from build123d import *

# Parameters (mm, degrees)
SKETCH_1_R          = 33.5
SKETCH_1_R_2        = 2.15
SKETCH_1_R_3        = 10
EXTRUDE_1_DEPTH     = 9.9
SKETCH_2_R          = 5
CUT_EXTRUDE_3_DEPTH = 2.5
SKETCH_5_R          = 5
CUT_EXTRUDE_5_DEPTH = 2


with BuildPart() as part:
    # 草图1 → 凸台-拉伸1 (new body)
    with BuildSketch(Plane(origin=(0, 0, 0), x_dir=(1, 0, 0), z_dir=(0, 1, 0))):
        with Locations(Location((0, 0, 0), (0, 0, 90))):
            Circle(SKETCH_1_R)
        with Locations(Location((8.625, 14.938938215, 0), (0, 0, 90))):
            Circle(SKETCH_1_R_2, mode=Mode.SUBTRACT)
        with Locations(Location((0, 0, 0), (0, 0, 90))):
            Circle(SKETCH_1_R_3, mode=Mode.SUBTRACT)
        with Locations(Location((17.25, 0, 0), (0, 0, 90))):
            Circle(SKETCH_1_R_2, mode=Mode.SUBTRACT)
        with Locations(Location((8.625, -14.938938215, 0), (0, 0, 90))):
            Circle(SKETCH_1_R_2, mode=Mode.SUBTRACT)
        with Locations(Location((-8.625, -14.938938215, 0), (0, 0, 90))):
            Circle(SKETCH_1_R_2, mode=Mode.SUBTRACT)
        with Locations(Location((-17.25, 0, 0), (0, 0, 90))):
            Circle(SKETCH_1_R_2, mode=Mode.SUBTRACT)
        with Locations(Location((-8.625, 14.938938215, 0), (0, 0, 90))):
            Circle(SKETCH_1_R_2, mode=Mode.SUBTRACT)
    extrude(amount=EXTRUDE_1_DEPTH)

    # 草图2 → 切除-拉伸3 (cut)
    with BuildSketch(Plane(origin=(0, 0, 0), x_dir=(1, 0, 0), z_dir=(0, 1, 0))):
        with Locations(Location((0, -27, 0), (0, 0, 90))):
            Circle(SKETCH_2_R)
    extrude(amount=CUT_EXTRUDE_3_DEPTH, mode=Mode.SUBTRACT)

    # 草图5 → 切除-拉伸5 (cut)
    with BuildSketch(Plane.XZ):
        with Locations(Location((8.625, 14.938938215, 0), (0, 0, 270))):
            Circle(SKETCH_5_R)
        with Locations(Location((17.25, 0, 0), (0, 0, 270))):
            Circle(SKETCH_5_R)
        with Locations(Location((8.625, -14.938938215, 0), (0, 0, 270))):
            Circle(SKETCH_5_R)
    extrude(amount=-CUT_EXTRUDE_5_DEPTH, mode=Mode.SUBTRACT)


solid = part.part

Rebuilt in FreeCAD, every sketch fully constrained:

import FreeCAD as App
import Part
import Sketcher
from FreeCAD import Vector

doc = App.newDocument("Part")
params = doc.addObject("Spreadsheet::Sheet", "Params")
for row, (alias, value) in enumerate([
    ("sketch1_diameter", "67 mm"),
    ("sketch1_diameter2", "20 mm"),
    ("sketch1_diameter3", "4.3 mm"),
    ("pad1_length", "9.9 mm"),
    ("sketch2_diameter", "10 mm"),
    ("pocket1_length", "2.5 mm"),
    ("sketch3_diameter", "10 mm"),
    ("pocket2_length", "2 mm"),
], start=1):
    params.set(f"A{row}", alias)
    params.set(f"B{row}", "=" + value)
    params.setAlias(f"B{row}", alias)

body = doc.addObject("PartDesign::Body", "Body")

sketch1 = body.newObject("Sketcher::SketchObject", "Sketch")
sketch1.AttachmentSupport = (doc.getObject("XZ_Plane"), [""])
sketch1.MapMode = "FlatFace"
sketch1.addGeometry(Part.Circle(Vector(0, 0, 0), Vector(0, 0, 1), 33.5), False)
sketch1.addGeometry(Part.Circle(Vector(8.6, 14.9, 0), Vector(0, 0, 1), 2.1), False)
sketch1.addGeometry(Part.Circle(Vector(17.2, 0, 0), Vector(0, 0, 1), 2.1), False)
sketch1.addGeometry(Part.Circle(Vector(8.6, -14.9, 0), Vector(0, 0, 1), 2.1), False)
sketch1.addGeometry(Part.Circle(Vector(-8.6, 14.9, 0), Vector(0, 0, 1), 2.1), False)
sketch1.addGeometry(Part.Circle(Vector(0, 0, 0), Vector(0, 0, 1), 10), False)
sketch1.addGeometry(Part.Circle(Vector(-17.2, 0, 0), Vector(0, 0, 1), 2.1), False)
sketch1.addGeometry(Part.Circle(Vector(-8.6, -14.9, 0), Vector(0, 0, 1), 2.1), False)
sketch1.addConstraint(Sketcher.Constraint("Coincident", 0, 3, -1, 1))
sketch1.addConstraint(Sketcher.Constraint("Coincident", 5, 3, -1, 1))
sketch1.addConstraint(Sketcher.Constraint("Equal", 1, 2))
sketch1.addConstraint(Sketcher.Constraint("Equal", 2, 3))
sketch1.addConstraint(Sketcher.Constraint("Equal", 3, 4))
sketch1.addConstraint(Sketcher.Constraint("Equal", 4, 6))
sketch1.addConstraint(Sketcher.Constraint("Equal", 6, 7))
sketch1.addConstraint(Sketcher.Constraint("Symmetric", 3, 3, 4, 3, -1, 1))
sketch1.addConstraint(Sketcher.Constraint("Symmetric", 2, 3, 6, 3, -1, 1))
sketch1.addConstraint(Sketcher.Constraint("Symmetric", 1, 3, 7, 3, -1, 1))
sketch1.addConstraint(Sketcher.Constraint("Symmetric", 1, 3, 4, 3, -2))
sketch1.addConstraint(Sketcher.Constraint("PointOnObject", 2, 3, -1))
sketch1.addConstraint(Sketcher.Constraint("Diameter", 0, 67.0))
sketch1.addConstraint(Sketcher.Constraint("Diameter", 5, 20.0))
sketch1.addConstraint(Sketcher.Constraint("Diameter", 1, 4.3))
sketch1.addConstraint(Sketcher.Constraint("DistanceX", -1, 1, 2, 3, 17.25))
sketch1.addConstraint(Sketcher.Constraint("DistanceX", 4, 3, 1, 3, 17.25))
sketch1.addConstraint(Sketcher.Constraint("DistanceY", -1, 1, 1, 3, 14.938938))
sketch1.setExpression("Constraints[12]", "Params.sketch1_diameter")
sketch1.setExpression("Constraints[13]", "Params.sketch1_diameter2")
sketch1.setExpression("Constraints[14]", "Params.sketch1_diameter3")
pad1 = body.newObject("PartDesign::Pad", "Pad")
pad1.Profile = sketch1
pad1.setExpression("Length", "Params.pad1_length")
pad1.Reversed = True

sketch2 = body.newObject("Sketcher::SketchObject", "Sketch001")
sketch2.AttachmentSupport = (doc.getObject("XZ_Plane"), [""])
sketch2.MapMode = "FlatFace"
sketch2.addGeometry(Part.Circle(Vector(0, 27, 0), Vector(0, 0, 1), 5), False)
sketch2.addConstraint(Sketcher.Constraint("PointOnObject", 0, 3, -2))
sketch2.addConstraint(Sketcher.Constraint("Diameter", 0, 10.0))
sketch2.addConstraint(Sketcher.Constraint("DistanceY", -1, 1, 0, 3, 27.0))
sketch2.setExpression("Constraints[1]", "Params.sketch2_diameter")
pocket1 = body.newObject("PartDesign::Pocket", "Pocket")
pocket1.Profile = sketch2
pocket1.setExpression("Length", "Params.pocket1_length")

sketch3 = body.newObject("Sketcher::SketchObject", "Sketch002")
sketch3.AttachmentSupport = (doc.getObject("XZ_Plane"), [""])
sketch3.MapMode = "FlatFace"
sketch3.addGeometry(Part.Circle(Vector(9, 15, 0), Vector(0, 0, 1), 5), False)
sketch3.addGeometry(Part.Circle(Vector(17, 0, 0), Vector(0, 0, 1), 5), False)
sketch3.addGeometry(Part.Circle(Vector(9, -15, 0), Vector(0, 0, 1), 5), False)
sketch3.addConstraint(Sketcher.Constraint("Equal", 0, 1))
sketch3.addConstraint(Sketcher.Constraint("Equal", 1, 2))
sketch3.addConstraint(Sketcher.Constraint("Symmetric", 0, 3, 2, 3, -1))
sketch3.addConstraint(Sketcher.Constraint("PointOnObject", 1, 3, -1))
sketch3.addConstraint(Sketcher.Constraint("Diameter", 0, 10.0))
sketch3.addConstraint(Sketcher.Constraint("DistanceX", -1, 1, 1, 3, 17.25))
sketch3.addConstraint(Sketcher.Constraint("DistanceX", -1, 1, 0, 3, 8.625))
sketch3.addConstraint(Sketcher.Constraint("DistanceY", -1, 1, 0, 3, 14.938938))
sketch3.setExpression("Constraints[4]", "Params.sketch3_diameter")
pocket2 = body.newObject("PartDesign::Pocket", "Pocket001")
pocket2.Profile = sketch3
pocket2.setExpression("Length", "Params.pocket2_length")

doc.recompute()
